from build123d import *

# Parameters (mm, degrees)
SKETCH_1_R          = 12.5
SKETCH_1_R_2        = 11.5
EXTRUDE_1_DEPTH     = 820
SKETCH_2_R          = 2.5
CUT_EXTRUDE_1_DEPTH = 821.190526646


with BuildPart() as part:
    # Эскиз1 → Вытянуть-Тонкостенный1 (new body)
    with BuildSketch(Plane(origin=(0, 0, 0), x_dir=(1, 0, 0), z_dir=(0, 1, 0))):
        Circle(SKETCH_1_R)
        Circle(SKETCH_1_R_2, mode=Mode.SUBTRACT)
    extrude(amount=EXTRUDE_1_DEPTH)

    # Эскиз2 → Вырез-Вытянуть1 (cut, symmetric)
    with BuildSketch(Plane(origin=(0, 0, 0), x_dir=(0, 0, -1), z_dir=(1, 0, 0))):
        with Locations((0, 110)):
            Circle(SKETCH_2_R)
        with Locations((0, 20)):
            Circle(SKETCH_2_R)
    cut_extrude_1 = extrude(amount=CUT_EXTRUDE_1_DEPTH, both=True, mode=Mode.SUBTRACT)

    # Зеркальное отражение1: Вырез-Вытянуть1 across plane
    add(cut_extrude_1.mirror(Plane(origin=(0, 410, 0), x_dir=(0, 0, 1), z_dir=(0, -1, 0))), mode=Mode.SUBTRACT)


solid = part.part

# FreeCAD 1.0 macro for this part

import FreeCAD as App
import Part
import Sketcher
from FreeCAD import Vector

doc = App.newDocument("Part")
body = doc.addObject("PartDesign::Body", "Body")

# Sketch on XZ plane
sketch1 = body.newObject("Sketcher::SketchObject", "Sketch")
sketch1.AttachmentSupport = (doc.getObject("XZ_Plane"), [""])
sketch1.MapMode = "FlatFace"
sketch1.addGeometry(Part.Circle(Vector(0, 0, 0), Vector(0, 0, 1), 12), False)
sketch1.addGeometry(Part.Circle(Vector(0, 0, 0), Vector(0, 0, 1), 12), False)
sketch1.addConstraint(Sketcher.Constraint("Coincident", 0, 3, -1, 1))
sketch1.addConstraint(Sketcher.Constraint("Coincident", 1, 3, -1, 1))
sketch1.addConstraint(Sketcher.Constraint("Diameter", 0, 25.0))
sketch1.addConstraint(Sketcher.Constraint("Diameter", 1, 23.0))
pad1 = body.newObject("PartDesign::Pad", "Pad")
pad1.Profile = sketch1
pad1.Length = 820
pad1.Reversed = True

# Sketch on YZ plane
sketch2 = body.newObject("Sketcher::SketchObject", "Sketch001")
sketch2.AttachmentSupport = (doc.getObject("YZ_Plane"), [""])
sketch2.MapMode = "FlatFace"
sketch2.addGeometry(Part.Circle(Vector(110, 0, 0), Vector(0, 0, 1), 2.5), False)
sketch2.addGeometry(Part.Circle(Vector(20, 0, 0), Vector(0, 0, 1), 2.5), False)
sketch2.addConstraint(Sketcher.Constraint("Equal", 0, 1))
sketch2.addConstraint(Sketcher.Constraint("PointOnObject", 0, 3, -1))
sketch2.addConstraint(Sketcher.Constraint("PointOnObject", 1, 3, -1))
sketch2.addConstraint(Sketcher.Constraint("Diameter", 0, 5.0))
sketch2.addConstraint(Sketcher.Constraint("DistanceX", -1, 1, 0, 3, 110.0))
sketch2.addConstraint(Sketcher.Constraint("DistanceX", -1, 1, 1, 3, 20.0))
pocket1 = body.newObject("PartDesign::Pocket", "Pocket")
pocket1.Profile = sketch2
pocket1.Length = 1642.381053
pocket1.Midplane = True
doc.recompute()

datumplane = body.newObject("PartDesign::Plane", "DatumPlane")
datumplane.AttachmentSupport = (doc.getObject("XZ_Plane"), [""])
datumplane.MapMode = "FlatFace"
datumplane.AttachmentOffset = App.Placement(Vector(0, 0, -410), App.Rotation())
mirrored = body.newObject("PartDesign::Mirrored", "Mirrored")
mirrored.Originals = [pocket1]
mirrored.MirrorPlane = (datumplane, [""])
body.Tip = mirrored

doc.recompute()
